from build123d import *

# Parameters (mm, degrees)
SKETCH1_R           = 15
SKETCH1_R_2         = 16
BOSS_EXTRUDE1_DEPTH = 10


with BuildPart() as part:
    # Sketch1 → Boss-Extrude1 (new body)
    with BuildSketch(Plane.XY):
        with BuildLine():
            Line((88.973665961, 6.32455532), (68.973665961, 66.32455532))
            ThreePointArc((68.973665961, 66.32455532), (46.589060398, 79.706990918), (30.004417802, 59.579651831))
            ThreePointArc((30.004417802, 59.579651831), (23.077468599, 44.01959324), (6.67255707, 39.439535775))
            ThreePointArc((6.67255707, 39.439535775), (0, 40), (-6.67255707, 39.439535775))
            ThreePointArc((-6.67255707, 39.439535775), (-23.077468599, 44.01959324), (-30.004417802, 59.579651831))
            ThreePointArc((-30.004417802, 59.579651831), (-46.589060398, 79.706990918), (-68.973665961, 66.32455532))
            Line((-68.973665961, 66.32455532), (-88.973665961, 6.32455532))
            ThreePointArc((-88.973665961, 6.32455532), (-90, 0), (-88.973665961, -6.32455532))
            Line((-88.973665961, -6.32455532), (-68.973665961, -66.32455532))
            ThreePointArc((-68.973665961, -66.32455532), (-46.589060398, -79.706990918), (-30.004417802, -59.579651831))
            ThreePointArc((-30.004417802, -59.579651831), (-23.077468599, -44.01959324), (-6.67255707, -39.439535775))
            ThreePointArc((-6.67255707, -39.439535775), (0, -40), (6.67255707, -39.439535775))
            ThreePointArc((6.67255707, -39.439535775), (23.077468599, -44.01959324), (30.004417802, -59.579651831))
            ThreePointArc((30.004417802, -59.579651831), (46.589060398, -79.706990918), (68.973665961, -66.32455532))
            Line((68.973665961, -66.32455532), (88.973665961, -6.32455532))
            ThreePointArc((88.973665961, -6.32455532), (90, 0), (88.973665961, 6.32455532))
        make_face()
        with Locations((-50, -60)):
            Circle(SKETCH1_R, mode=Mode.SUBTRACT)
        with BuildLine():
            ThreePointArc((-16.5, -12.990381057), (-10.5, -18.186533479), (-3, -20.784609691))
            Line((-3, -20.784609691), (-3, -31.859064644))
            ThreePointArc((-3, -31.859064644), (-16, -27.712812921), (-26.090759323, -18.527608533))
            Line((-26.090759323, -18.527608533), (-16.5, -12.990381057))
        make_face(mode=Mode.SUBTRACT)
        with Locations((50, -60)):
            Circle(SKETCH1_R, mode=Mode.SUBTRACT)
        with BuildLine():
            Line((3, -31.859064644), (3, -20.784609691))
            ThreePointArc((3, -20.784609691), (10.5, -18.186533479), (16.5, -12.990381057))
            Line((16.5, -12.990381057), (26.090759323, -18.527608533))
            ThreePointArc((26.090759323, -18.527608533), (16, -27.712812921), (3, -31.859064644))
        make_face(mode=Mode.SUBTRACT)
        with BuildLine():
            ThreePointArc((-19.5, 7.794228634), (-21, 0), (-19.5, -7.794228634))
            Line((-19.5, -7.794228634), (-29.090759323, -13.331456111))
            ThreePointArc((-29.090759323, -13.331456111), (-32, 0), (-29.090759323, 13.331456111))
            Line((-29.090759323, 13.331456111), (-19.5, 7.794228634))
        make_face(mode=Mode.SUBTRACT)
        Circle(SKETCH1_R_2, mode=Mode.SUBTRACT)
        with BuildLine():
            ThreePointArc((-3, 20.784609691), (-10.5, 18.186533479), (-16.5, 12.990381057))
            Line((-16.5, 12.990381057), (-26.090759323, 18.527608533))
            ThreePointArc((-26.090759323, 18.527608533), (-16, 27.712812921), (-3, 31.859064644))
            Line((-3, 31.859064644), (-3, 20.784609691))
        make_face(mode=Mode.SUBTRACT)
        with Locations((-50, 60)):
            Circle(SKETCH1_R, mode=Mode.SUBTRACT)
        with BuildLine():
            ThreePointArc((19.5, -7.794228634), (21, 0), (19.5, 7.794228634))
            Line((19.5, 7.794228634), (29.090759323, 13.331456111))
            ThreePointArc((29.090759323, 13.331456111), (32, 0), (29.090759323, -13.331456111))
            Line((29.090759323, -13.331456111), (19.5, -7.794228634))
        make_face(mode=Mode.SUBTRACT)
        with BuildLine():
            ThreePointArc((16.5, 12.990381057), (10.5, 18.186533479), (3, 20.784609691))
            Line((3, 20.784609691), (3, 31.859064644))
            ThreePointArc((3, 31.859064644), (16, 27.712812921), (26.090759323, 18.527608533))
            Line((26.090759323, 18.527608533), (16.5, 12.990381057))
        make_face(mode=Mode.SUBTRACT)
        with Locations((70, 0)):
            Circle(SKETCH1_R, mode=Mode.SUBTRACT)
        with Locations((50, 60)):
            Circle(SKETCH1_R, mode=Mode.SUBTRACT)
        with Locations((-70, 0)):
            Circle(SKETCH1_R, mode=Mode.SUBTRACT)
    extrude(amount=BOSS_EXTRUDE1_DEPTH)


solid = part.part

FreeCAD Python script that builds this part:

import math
import FreeCAD as App
import Part
import Sketcher
from FreeCAD import Vector
Q = App.Units.Quantity

doc = App.newDocument("Part")
body = doc.addObject("PartDesign::Body", "Body")

sketch1 = doc.addObject("Sketcher::SketchObject", "Sketch")
body.addObject(sketch1)
sketch1.AttachmentSupport = (doc.XY_Plane, [""])
sketch1.MapMode = "FlatFace"
sketch1.addGeometry(Part.LineSegment(Vector(88.973666, 6.324555, 0), Vector(68.973666, 66.324555, 0)), False)
sketch1.addGeometry(Part.ArcOfCircle(Part.Circle(Vector(50, 60, 0), Vector(0, 0, 1), 20), math.radians(18.434949), math.radians(181.204297)), False)
sketch1.addGeometry(Part.ArcOfCircle(Part.Circle(Vector(10.008836, 59.159304, 0), Vector(0, 0, 1), 20), math.radians(-99.602625), math.radians(1.204297)), False)
sketch1.addGeometry(Part.ArcOfCircle(Part.Circle(Vector(0, 0, 0), Vector(0, 0, 1), 40), math.radians(80.397375), math.radians(99.602625)), False)
sketch1.addGeometry(Part.ArcOfCircle(Part.Circle(Vector(-10.008836, 59.159304, 0), Vector(0, 0, 1), 20), math.radians(178.795703), math.radians(279.602625)), False)
sketch1.addGeometry(Part.ArcOfCircle(Part.Circle(Vector(-50, 60, 0), Vector(0, 0, 1), 20), math.radians(-1.204297), math.radians(161.565051)), False)
sketch1.addGeometry(Part.LineSegment(Vector(-68.973666, 66.324555, 0), Vector(-88.973666, 6.324555, 0)), False)
sketch1.addGeometry(Part.ArcOfCircle(Part.Circle(Vector(-70, 0, 0), Vector(0, 0, 1), 20), math.radians(161.565051), math.radians(198.434949)), False)
sketch1.addGeometry(Part.LineSegment(Vector(-88.973666, -6.324555, 0), Vector(-68.973666, -66.324555, 0)), False)
sketch1.addGeometry(Part.ArcOfCircle(Part.Circle(Vector(-50, -60, 0), Vector(0, 0, 1), 20), math.radians(-161.565051), math.radians(1.204297)), False)
sketch1.addGeometry(Part.ArcOfCircle(Part.Circle(Vector(-10.008836, -59.159304, 0), Vector(0, 0, 1), 20), math.radians(80.397375), math.radians(181.204297)), False)
sketch1.addGeometry(Part.ArcOfCircle(Part.Circle(Vector(0, 0, 0), Vector(0, 0, 1), 40), math.radians(-99.602625), math.radians(-80.397375)), False)
sketch1.addGeometry(Part.ArcOfCircle(Part.Circle(Vector(10.008836, -59.159304, 0), Vector(0, 0, 1), 20), math.radians(-1.204297), math.radians(99.602625)), False)
sketch1.addGeometry(Part.ArcOfCircle(Part.Circle(Vector(50, -60, 0), Vector(0, 0, 1), 20), math.radians(178.795703), math.radians(341.565051)), False)
sketch1.addGeometry(Part.LineSegment(Vector(68.973666, -66.324555, 0), Vector(88.973666, -6.324555, 0)), False)
sketch1.addGeometry(Part.ArcOfCircle(Part.Circle(Vector(70, 0, 0), Vector(0, 0, 1), 20), math.radians(-18.434949), math.radians(18.434949)), False)
sketch1.addGeometry(Part.Circle(Vector(-50, -60, 0), Vector(0, 0, 1), 15), False)
sketch1.addGeometry(Part.LineSegment(Vector(-26.090759, -18.527609, 0), Vector(-16.5, -12.990381, 0)), False)
sketch1.addGeometry(Part.ArcOfCircle(Part.Circle(Vector(0, 0, 0), Vector(0, 0, 1), 21), math.radians(-141.786789), math.radians(-98.213211)), False)
sketch1.addGeometry(Part.LineSegment(Vector(-3, -20.78461, 0), Vector(-3, -31.859065, 0)), False)
sketch1.addGeometry(Part.ArcOfCircle(Part.Circle(Vector(0, 0, 0), Vector(0, 0, 1), 32), math.radians(-144.620621), math.radians(-95.379379)), False)
sketch1.addGeometry(Part.Circle(Vector(50, -60, 0), Vector(0, 0, 1), 15), False)
sketch1.addGeometry(Part.ArcOfCircle(Part.Circle(Vector(0, 0, 0), Vector(0, 0, 1), 32), math.radians(-84.620621), math.radians(-35.379379)), False)
sketch1.addGeometry(Part.LineSegment(Vector(3, -31.859065, 0), Vector(3, -20.78461, 0)), False)
sketch1.addGeometry(Part.ArcOfCircle(Part.Circle(Vector(0, 0, 0), Vector(0, 0, 1), 21), math.radians(-81.786789), math.radians(-38.213211)), False)
sketch1.addGeometry(Part.LineSegment(Vector(16.5, -12.990381, 0), Vector(26.090759, -18.527609, 0)), False)
sketch1.addGeometry(Part.Circle(Vector(-70, 0, 0), Vector(0, 0, 1), 15), False)
sketch1.addGeometry(Part.LineSegment(Vector(-29.090759, 13.331456, 0), Vector(-19.5, 7.794229, 0)), False)
sketch1.addGeometry(Part.ArcOfCircle(Part.Circle(Vector(0, 0, 0), Vector(0, 0, 1), 21), math.radians(158.213211), math.radians(201.786789)), False)
sketch1.addGeometry(Part.LineSegment(Vector(-19.5, -7.794229, 0), Vector(-29.090759, -13.331456, 0)), False)
sketch1.addGeometry(Part.ArcOfCircle(Part.Circle(Vector(0, 0, 0), Vector(0, 0, 1), 32), math.radians(155.379379), math.radians(204.620621)), False)
sketch1.addGeometry(Part.LineSegment(Vector(-3, 31.859065, 0), Vector(-3, 20.78461, 0)), False)
sketch1.addGeometry(Part.ArcOfCircle(Part.Circle(Vector(0, 0, 0), Vector(0, 0, 1), 21), math.radians(98.213211), math.radians(141.786789)), False)
sketch1.addGeometry(Part.LineSegment(Vector(-16.5, 12.990381, 0), Vector(-26.090759, 18.527609, 0)), False)
sketch1.addGeometry(Part.ArcOfCircle(Part.Circle(Vector(0, 0, 0), Vector(0, 0, 1), 32), math.radians(95.379379), math.radians(144.620621)), False)
sketch1.addGeometry(Part.Circle(Vector(-50, 60, 0), Vector(0, 0, 1), 15), False)
sketch1.addGeometry(Part.Circle(Vector(0, 0, 0), Vector(0, 0, 1), 16), False)
sketch1.addGeometry(Part.LineSegment(Vector(29.090759, -13.331456, 0), Vector(19.5, -7.794229, 0)), False)
sketch1.addGeometry(Part.ArcOfCircle(Part.Circle(Vector(0, 0, 0), Vector(0, 0, 1), 21), math.radians(-21.786789), math.radians(21.786789)), False)
sketch1.addGeometry(Part.LineSegment(Vector(19.5, 7.794229, 0), Vector(29.090759, 13.331456, 0)), False)
sketch1.addGeometry(Part.ArcOfCircle(Part.Circle(Vector(0, 0, 0), Vector(0, 0, 1), 32), math.radians(-24.620621), math.radians(24.620621)), False)
sketch1.addGeometry(Part.LineSegment(Vector(26.090759, 18.527609, 0), Vector(16.5, 12.990381, 0)), False)
sketch1.addGeometry(Part.ArcOfCircle(Part.Circle(Vector(0, 0, 0), Vector(0, 0, 1), 21), math.radians(38.213211), math.radians(81.786789)), False)
sketch1.addGeometry(Part.LineSegment(Vector(3, 20.78461, 0), Vector(3, 31.859065, 0)), False)
sketch1.addGeometry(Part.ArcOfCircle(Part.Circle(Vector(0, 0, 0), Vector(0, 0, 1), 32), math.radians(35.379379), math.radians(84.620621)), False)
sketch1.addGeometry(Part.Circle(Vector(70, 0, 0), Vector(0, 0, 1), 15), False)
sketch1.addGeometry(Part.Circle(Vector(50, 60, 0), Vector(0, 0, 1), 15), False)
sketch1.addConstraint(Sketcher.Constraint("Tangent", 0, 2, 1, 1))
sketch1.addConstraint(Sketcher.Constraint("Tangent", 1, 2, 2, 2))
sketch1.addConstraint(Sketcher.Constraint("Tangent", 2, 1, 3, 1))
sketch1.addConstraint(Sketcher.Constraint("Tangent", 3, 2, 4, 2))
sketch1.addConstraint(Sketcher.Constraint("Tangent", 4, 1, 5, 1))
sketch1.addConstraint(Sketcher.Constraint("Tangent", 5, 2, 6, 1))
sketch1.addConstraint(Sketcher.Constraint("Tangent", 6, 2, 7, 1))
sketch1.addConstraint(Sketcher.Constraint("Tangent", 7, 2, 8, 1))
sketch1.addConstraint(Sketcher.Constraint("Tangent", 8, 2, 9, 1))
sketch1.addConstraint(Sketcher.Constraint("Tangent", 9, 2, 10, 2))
sketch1.addConstraint(Sketcher.Constraint("Tangent", 10, 1, 11, 1))
sketch1.addConstraint(Sketcher.Constraint("Tangent", 11, 2, 12, 2))
sketch1.addConstraint(Sketcher.Constraint("Tangent", 12, 1, 13, 1))
sketch1.addConstraint(Sketcher.Constraint("Tangent", 13, 2, 14, 1))
sketch1.addConstraint(Sketcher.Constraint("Tangent", 14, 2, 15, 1))
sketch1.addConstraint(Sketcher.Constraint("Tangent", 15, 2, 0, 1))
sketch1.addConstraint(Sketcher.Constraint("Coincident", 17, 2, 18, 1))
sketch1.addConstraint(Sketcher.Constraint("Coincident", 18, 2, 19, 1))
sketch1.addConstraint(Sketcher.Constraint("Coincident", 19, 2, 20, 2))
sketch1.addConstraint(Sketcher.Constraint("Coincident", 20, 1, 17, 1))
sketch1.addConstraint(Sketcher.Constraint("Coincident", 22, 1, 23, 1))
sketch1.addConstraint(Sketcher.Constraint("Coincident", 23, 2, 24, 1))
sketch1.addConstraint(Sketcher.Constraint("Coincident", 24, 2, 25, 1))
sketch1.addConstraint(Sketcher.Constraint("Coincident", 25, 2, 22, 2))
sketch1.addConstraint(Sketcher.Constraint("Coincident", 27, 2, 28, 1))
sketch1.addConstraint(Sketcher.Constraint("Coincident", 28, 2, 29, 1))
sketch1.addConstraint(Sketcher.Constraint("Coincident", 29, 2, 30, 2))
sketch1.addConstraint(Sketcher.Constraint("Coincident", 30, 1, 27, 1))
sketch1.addConstraint(Sketcher.Constraint("Coincident", 31, 2, 32, 1))
sketch1.addConstraint(Sketcher.Constraint("Coincident", 32, 2, 33, 1))
sketch1.addConstraint(Sketcher.Constraint("Coincident", 33, 2, 34, 2))
sketch1.addConstraint(Sketcher.Constraint("Coincident", 34, 1, 31, 1))
sketch1.addConstraint(Sketcher.Constraint("Coincident", 37, 2, 38, 1))
sketch1.addConstraint(Sketcher.Constraint("Coincident", 38, 2, 39, 1))
sketch1.addConstraint(Sketcher.Constraint("Coincident", 39, 2, 40, 2))
sketch1.addConstraint(Sketcher.Constraint("Coincident", 40, 1, 37, 1))
sketch1.addConstraint(Sketcher.Constraint("Coincident", 41, 2, 42, 1))
sketch1.addConstraint(Sketcher.Constraint("Coincident", 42, 2, 43, 1))
sketch1.addConstraint(Sketcher.Constraint("Coincident", 43, 2, 44, 2))
sketch1.addConstraint(Sketcher.Constraint("Coincident", 44, 1, 41, 1))
sketch1.addConstraint(Sketcher.Constraint("Vertical", 19))
sketch1.addConstraint(Sketcher.Constraint("Vertical", 23))
sketch1.addConstraint(Sketcher.Constraint("Vertical", 31))
sketch1.addConstraint(Sketcher.Constraint("Vertical", 43))
sketch1.addConstraint(Sketcher.Constraint("Coincident", 3, 3, -1, 1))
sketch1.addConstraint(Sketcher.Constraint("Coincident", 11, 3, -1, 1))
sketch1.addConstraint(Sketcher.Constraint("Coincident", 18, 3, -1, 1))
sketch1.addConstraint(Sketcher.Constraint("Coincident", 20, 3, -1, 1))
sketch1.addConstraint(Sketcher.Constraint("Coincident", 22, 3, -1, 1))
sketch1.addConstraint(Sketcher.Constraint("Coincident", 24, 3, -1, 1))
sketch1.addConstraint(Sketcher.Constraint("Coincident", 28, 3, -1, 1))
sketch1.addConstraint(Sketcher.Constraint("Coincident", 30, 3, -1, 1))
sketch1.addConstraint(Sketcher.Constraint("Coincident", 32, 3, -1, 1))
sketch1.addConstraint(Sketcher.Constraint("Coincident", 34, 3, -1, 1))
sketch1.addConstraint(Sketcher.Constraint("Coincident", 36, 3, -1, 1))
sketch1.addConstraint(Sketcher.Constraint("Coincident", 38, 3, -1, 1))
sketch1.addConstraint(Sketcher.Constraint("Coincident", 40, 3, -1, 1))
sketch1.addConstraint(Sketcher.Constraint("Coincident", 42, 3, -1, 1))
sketch1.addConstraint(Sketcher.Constraint("Coincident", 44, 3, -1, 1))
sketch1.addConstraint(Sketcher.Constraint("Coincident", 16, 3, 9, 3))
sketch1.addConstraint(Sketcher.Constraint("Coincident", 21, 3, 13, 3))
sketch1.addConstraint(Sketcher.Constraint("Coincident", 26, 3, 7, 3))
sketch1.addConstraint(Sketcher.Constraint("Coincident", 35, 3, 5, 3))
sketch1.addConstraint(Sketcher.Constraint("Coincident", 45, 3, 15, 3))
sketch1.addConstraint(Sketcher.Constraint("Coincident", 46, 3, 1, 3))
sketch1.addConstraint(Sketcher.Constraint("Equal", 1, 2))
sketch1.addConstraint(Sketcher.Constraint("Equal", 2, 4))
sketch1.addConstraint(Sketcher.Constraint("Equal", 4, 5))
sketch1.addConstraint(Sketcher.Constraint("Equal", 5, 7))
sketch1.addConstraint(Sketcher.Constraint("Equal", 7, 9))
sketch1.addConstraint(Sketcher.Constraint("Equal", 9, 10))
sketch1.addConstraint(Sketcher.Constraint("Equal", 3, 11))
sketch1.addConstraint(Sketcher.Constraint("Equal", 10, 12))
sketch1.addConstraint(Sketcher.Constraint("Equal", 12, 13))
sketch1.addConstraint(Sketcher.Constraint("Equal", 13, 15))
sketch1.addConstraint(Sketcher.Constraint("Equal", 16, 21))
sketch1.addConstraint(Sketcher.Constraint("Equal", 20, 22))
sketch1.addConstraint(Sketcher.Constraint("Equal", 18, 24))
sketch1.addConstraint(Sketcher.Constraint("Equal", 21, 26))
sketch1.addConstraint(Sketcher.Constraint("Equal", 24, 28))
sketch1.addConstraint(Sketcher.Constraint("Equal", 22, 30))
sketch1.addConstraint(Sketcher.Constraint("Equal", 28, 32))
sketch1.addConstraint(Sketcher.Constraint("Equal", 30, 34))
sketch1.addConstraint(Sketcher.Constraint("Equal", 26, 35))
sketch1.addConstraint(Sketcher.Constraint("Equal", 32, 38))
sketch1.addConstraint(Sketcher.Constraint("Equal", 34, 40))
sketch1.addConstraint(Sketcher.Constraint("Equal", 38, 42))
sketch1.addConstraint(Sketcher.Constraint("Equal", 40, 44))
sketch1.addConstraint(Sketcher.Constraint("Equal", 35, 45))
sketch1.addConstraint(Sketcher.Constraint("Equal", 45, 46))
sketch1.addConstraint(Sketcher.Constraint("Symmetric", 1, 3, 9, 3, -1, 1))
sketch1.addConstraint(Sketcher.Constraint("Symmetric", 5, 3, 13, 3, -1, 1))
sketch1.addConstraint(Sketcher.Constraint("Symmetric", 7, 3, 15, 3, -1, 1))
sketch1.addConstraint(Sketcher.Constraint("Symmetric", 1, 3, 5, 3, -2))
sketch1.addConstraint(Sketcher.Constraint("PointOnObject", 7, 3, -1))
sketch1.addConstraint(Sketcher.Constraint("Parallel", 25, 27))
sketch1.addConstraint(Sketcher.Constraint("Parallel", 17, 29))
sketch1.addConstraint(Sketcher.Constraint("Parallel", 27, 33))
sketch1.addConstraint(Sketcher.Constraint("Parallel", 33, 37))
sketch1.addConstraint(Sketcher.Constraint("Parallel", 29, 39))
sketch1.addConstraint(Sketcher.Constraint("Parallel", 39, 41))
sketch1.addConstraint(Sketcher.Constraint("Horizontal", 19, 2, 22, 1))
sketch1.addConstraint(Sketcher.Constraint("Horizontal", 17, 2, 24, 2))
sketch1.addConstraint(Sketcher.Constraint("Horizontal", 20, 1, 25, 2))
sketch1.addConstraint(Sketcher.Constraint("Horizontal", 28, 2, 37, 2))
sketch1.addConstraint(Sketcher.Constraint("Horizontal", 27, 2, 38, 2))
sketch1.addConstraint(Sketcher.Constraint("Horizontal", 32, 2, 41, 2))
sketch1.addConstraint(Sketcher.Constraint("Horizontal", 31, 2, 42, 2))
sketch1.addConstraint(Sketcher.Constraint("Vertical", 27, 2, 28, 2))
sketch1.addConstraint(Sketcher.Constraint("Vertical", 19, 2, 31, 2))
sketch1.addConstraint(Sketcher.Constraint("Vertical", 17, 2, 32, 2))
sketch1.addConstraint(Sketcher.Constraint("Equal", 25, 27))
sketch1.addConstraint(Sketcher.Constraint("Diameter", 16, Q("30 mm")))
sketch1.addConstraint(Sketcher.Constraint("Diameter", 36, Q("32 mm")))
sketch1.addConstraint(Sketcher.Constraint("Radius", 1, Q("20 mm")))
sketch1.addConstraint(Sketcher.Constraint("Radius", 3, Q("40 mm")))
sketch1.addConstraint(Sketcher.Constraint("Radius", 18, Q("21 mm")))
sketch1.addConstraint(Sketcher.Constraint("Radius", 20, Q("32 mm")))
sketch1.addConstraint(Sketcher.Constraint("Angle", 17, Q("30 deg")))
sketch1.addConstraint(Sketcher.Constraint("DistanceX", -1, 1, 1, 3, Q("50 mm")))
sketch1.addConstraint(Sketcher.Constraint("DistanceY", -1, 1, 1, 3, Q("60 mm")))
sketch1.addConstraint(Sketcher.Constraint("DistanceX", 7, 3, -1, 1, Q("70 mm")))
sketch1.addConstraint(Sketcher.Constraint("DistanceX", 18, 2, -1, 1, Q("3 mm")))
sketch1.addConstraint(Sketcher.Constraint("DistanceX", 17, 2, -1, 1, Q("16.5 mm")))
pad1 = doc.addObject("PartDesign::Pad", "Pad")
body.addObject(pad1)
pad1.Profile = sketch1
pad1.Length = 10

doc.recompute()
